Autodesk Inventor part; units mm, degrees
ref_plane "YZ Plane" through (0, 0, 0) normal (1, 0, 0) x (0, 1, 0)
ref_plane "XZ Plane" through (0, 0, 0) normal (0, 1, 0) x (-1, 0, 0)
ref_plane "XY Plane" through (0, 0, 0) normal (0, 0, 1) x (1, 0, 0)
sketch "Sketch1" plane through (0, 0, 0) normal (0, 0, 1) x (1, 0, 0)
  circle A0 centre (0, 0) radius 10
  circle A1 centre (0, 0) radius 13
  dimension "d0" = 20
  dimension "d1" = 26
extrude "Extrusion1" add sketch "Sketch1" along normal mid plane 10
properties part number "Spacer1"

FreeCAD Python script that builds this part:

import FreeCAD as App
import Part
import Sketcher

V = App.Vector
Q = App.Units.Quantity

doc = App.newDocument("Part")
body = doc.addObject("PartDesign::Body", "Body")

sketch1 = body.newObject("Sketcher::SketchObject", "Sketch")
sketch1.AttachmentSupport = (doc.getObject("XY_Plane"), [""])
sketch1.MapMode = "FlatFace"
sketch1.addGeometry(Part.Circle(V(0, 0, 0), V(0, 0, 1), 13), False)
sketch1.addGeometry(Part.Circle(V(0, 0, 0), V(0, 0, 1), 10), False)
sketch1.addConstraint(Sketcher.Constraint("Coincident", 0, 3, -1, 1))
sketch1.addConstraint(Sketcher.Constraint("Coincident", 1, 3, -1, 1))
sketch1.addConstraint(Sketcher.Constraint("Diameter", 0, Q("26 mm")))
sketch1.addConstraint(Sketcher.Constraint("Diameter", 1, Q("20 mm")))
pad1 = body.newObject("PartDesign::Pad", "Pad")
pad1.Profile = sketch1
pad1.Length = 10
pad1.Midplane = True

doc.recompute()
